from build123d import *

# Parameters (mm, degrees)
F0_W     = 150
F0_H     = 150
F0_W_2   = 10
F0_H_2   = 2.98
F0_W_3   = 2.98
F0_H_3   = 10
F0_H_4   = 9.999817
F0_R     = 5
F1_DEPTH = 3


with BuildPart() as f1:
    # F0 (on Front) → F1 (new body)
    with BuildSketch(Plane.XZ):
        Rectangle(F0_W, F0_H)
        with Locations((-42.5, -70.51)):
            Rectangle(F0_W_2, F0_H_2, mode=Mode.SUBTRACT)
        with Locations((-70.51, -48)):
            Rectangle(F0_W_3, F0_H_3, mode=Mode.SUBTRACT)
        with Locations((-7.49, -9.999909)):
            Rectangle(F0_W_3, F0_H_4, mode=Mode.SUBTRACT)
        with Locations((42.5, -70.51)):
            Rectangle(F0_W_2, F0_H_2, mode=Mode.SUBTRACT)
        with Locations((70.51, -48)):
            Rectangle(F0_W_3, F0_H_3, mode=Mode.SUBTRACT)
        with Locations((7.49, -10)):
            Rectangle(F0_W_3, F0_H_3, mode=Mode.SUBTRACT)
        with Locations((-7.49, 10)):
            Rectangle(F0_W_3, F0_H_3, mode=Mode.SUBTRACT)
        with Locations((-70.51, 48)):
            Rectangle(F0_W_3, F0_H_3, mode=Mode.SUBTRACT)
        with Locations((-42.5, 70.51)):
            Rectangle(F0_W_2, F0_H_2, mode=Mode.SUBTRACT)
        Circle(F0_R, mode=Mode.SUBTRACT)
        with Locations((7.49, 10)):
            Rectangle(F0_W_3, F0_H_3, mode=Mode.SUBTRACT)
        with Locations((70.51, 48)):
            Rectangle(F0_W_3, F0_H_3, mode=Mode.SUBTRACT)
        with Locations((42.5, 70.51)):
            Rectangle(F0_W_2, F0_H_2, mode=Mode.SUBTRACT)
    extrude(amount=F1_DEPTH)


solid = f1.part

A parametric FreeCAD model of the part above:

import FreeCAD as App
import Part
import Sketcher

doc = App.newDocument("Part")
body = doc.addObject("PartDesign::Body", "Body")

# Sketch on XZ plane
sketch1 = body.newObject("Sketcher::SketchObject", "Sketch")
sketch1.AttachmentSupport = (doc.getObject("XZ_Plane"), [""])
sketch1.MapMode = "FlatFace"
sketch1.addGeometry(Part.LineSegment(App.Vector(-75, 75, 0), App.Vector(-75, -75, 0)), False)
sketch1.addGeometry(Part.LineSegment(App.Vector(-75, -75, 0), App.Vector(75, -75, 0)), False)
sketch1.addGeometry(Part.LineSegment(App.Vector(75, -75, 0), App.Vector(75, 75, 0)), False)
sketch1.addGeometry(Part.LineSegment(App.Vector(75, 75, 0), App.Vector(-75, 75, 0)), False)
sketch1.addGeometry(Part.LineSegment(App.Vector(-37.5, -72, 0), App.Vector(-47.5, -72, 0)), False)
sketch1.addGeometry(Part.LineSegment(App.Vector(-47.5, -72, 0), App.Vector(-47.5, -69, 0)), False)
sketch1.addGeometry(Part.LineSegment(App.Vector(-47.5, -69, 0), App.Vector(-37.5, -69, 0)), False)
sketch1.addGeometry(Part.LineSegment(App.Vector(-37.5, -69, 0), App.Vector(-37.5, -72, 0)), False)
sketch1.addGeometry(Part.LineSegment(App.Vector(-69, -53, 0), App.Vector(-72, -53, 0)), False)
sketch1.addGeometry(Part.LineSegment(App.Vector(-72, -53, 0), App.Vector(-72, -43, 0)), False)
sketch1.addGeometry(Part.LineSegment(App.Vector(-72, -43, 0), App.Vector(-69, -43, 0)), False)
sketch1.addGeometry(Part.LineSegment(App.Vector(-69, -43, 0), App.Vector(-69, -53, 0)), False)
sketch1.addGeometry(Part.LineSegment(App.Vector(-6, -15, 0), App.Vector(-9, -15, 0)), False)
sketch1.addGeometry(Part.LineSegment(App.Vector(-9, -15, 0), App.Vector(-9, -5, 0)), False)
sketch1.addGeometry(Part.LineSegment(App.Vector(-9, -5, 0), App.Vector(-6, -5, 0)), False)
sketch1.addGeometry(Part.LineSegment(App.Vector(-6, -5, 0), App.Vector(-6, -15, 0)), False)
sketch1.addGeometry(Part.LineSegment(App.Vector(47.5, -72, 0), App.Vector(37.5, -72, 0)), False)
sketch1.addGeometry(Part.LineSegment(App.Vector(37.5, -72, 0), App.Vector(37.5, -69, 0)), False)
sketch1.addGeometry(Part.LineSegment(App.Vector(37.5, -69, 0), App.Vector(47.5, -69, 0)), False)
sketch1.addGeometry(Part.LineSegment(App.Vector(47.5, -69, 0), App.Vector(47.5, -72, 0)), False)
sketch1.addGeometry(Part.LineSegment(App.Vector(72, -53, 0), App.Vector(69, -53, 0)), False)
sketch1.addGeometry(Part.LineSegment(App.Vector(69, -53, 0), App.Vector(69, -43, 0)), False)
sketch1.addGeometry(Part.LineSegment(App.Vector(69, -43, 0), App.Vector(72, -43, 0)), False)
sketch1.addGeometry(Part.LineSegment(App.Vector(72, -43, 0), App.Vector(72, -53, 0)), False)
sketch1.addGeometry(Part.LineSegment(App.Vector(9, -15, 0), App.Vector(6, -15, 0)), False)
sketch1.addGeometry(Part.LineSegment(App.Vector(6, -15, 0), App.Vector(6, -5, 0)), False)
sketch1.addGeometry(Part.LineSegment(App.Vector(6, -5, 0), App.Vector(9, -5, 0)), False)
sketch1.addGeometry(Part.LineSegment(App.Vector(9, -5, 0), App.Vector(9, -15, 0)), False)
sketch1.addGeometry(Part.LineSegment(App.Vector(-6, 5, 0), App.Vector(-9, 5, 0)), False)
sketch1.addGeometry(Part.LineSegment(App.Vector(-9, 5, 0), App.Vector(-9, 15, 0)), False)
sketch1.addGeometry(Part.LineSegment(App.Vector(-9, 15, 0), App.Vector(-6, 15, 0)), False)
sketch1.addGeometry(Part.LineSegment(App.Vector(-6, 15, 0), App.Vector(-6, 5, 0)), False)
sketch1.addGeometry(Part.LineSegment(App.Vector(-69, 43, 0), App.Vector(-72, 43, 0)), False)
sketch1.addGeometry(Part.LineSegment(App.Vector(-72, 43, 0), App.Vector(-72, 53, 0)), False)
sketch1.addGeometry(Part.LineSegment(App.Vector(-72, 53, 0), App.Vector(-69, 53, 0)), False)
sketch1.addGeometry(Part.LineSegment(App.Vector(-69, 53, 0), App.Vector(-69, 43, 0)), False)
sketch1.addGeometry(Part.LineSegment(App.Vector(-37.5, 69, 0), App.Vector(-47.5, 69, 0)), False)
sketch1.addGeometry(Part.LineSegment(App.Vector(-47.5, 69, 0), App.Vector(-47.5, 72, 0)), False)
sketch1.addGeometry(Part.LineSegment(App.Vector(-47.5, 72, 0), App.Vector(-37.5, 72, 0)), False)
sketch1.addGeometry(Part.LineSegment(App.Vector(-37.5, 72, 0), App.Vector(-37.5, 69, 0)), False)
sketch1.addGeometry(Part.Circle(App.Vector(0, 0, 0), App.Vector(0, 0, 1), 5), False)
sketch1.addGeometry(Part.LineSegment(App.Vector(9, 5, 0), App.Vector(6, 5, 0)), False)
sketch1.addGeometry(Part.LineSegment(App.Vector(6, 5, 0), App.Vector(6, 15, 0)), False)
sketch1.addGeometry(Part.LineSegment(App.Vector(6, 15, 0), App.Vector(9, 15, 0)), False)
sketch1.addGeometry(Part.LineSegment(App.Vector(9, 15, 0), App.Vector(9, 5, 0)), False)
sketch1.addGeometry(Part.LineSegment(App.Vector(72, 43, 0), App.Vector(69, 43, 0)), False)
sketch1.addGeometry(Part.LineSegment(App.Vector(69, 43, 0), App.Vector(69, 53, 0)), False)
sketch1.addGeometry(Part.LineSegment(App.Vector(69, 53, 0), App.Vector(72, 53, 0)), False)
sketch1.addGeometry(Part.LineSegment(App.Vector(72, 53, 0), App.Vector(72, 43, 0)), False)
sketch1.addGeometry(Part.LineSegment(App.Vector(47.5, 69, 0), App.Vector(37.5, 69, 0)), False)
sketch1.addGeometry(Part.LineSegment(App.Vector(37.5, 69, 0), App.Vector(37.5, 72, 0)), False)
sketch1.addGeometry(Part.LineSegment(App.Vector(37.5, 72, 0), App.Vector(47.5, 72, 0)), False)
sketch1.addGeometry(Part.LineSegment(App.Vector(47.5, 72, 0), App.Vector(47.5, 69, 0)), False)
sketch1.addConstraint(Sketcher.Constraint("Coincident", 0, 2, 1, 1))
sketch1.addConstraint(Sketcher.Constraint("Coincident", 1, 2, 2, 1))
sketch1.addConstraint(Sketcher.Constraint("Coincident", 2, 2, 3, 1))
sketch1.addConstraint(Sketcher.Constraint("Coincident", 3, 2, 0, 1))
sketch1.addConstraint(Sketcher.Constraint("Coincident", 4, 2, 5, 1))
sketch1.addConstraint(Sketcher.Constraint("Coincident", 5, 2, 6, 1))
sketch1.addConstraint(Sketcher.Constraint("Coincident", 6, 2, 7, 1))
sketch1.addConstraint(Sketcher.Constraint("Coincident", 7, 2, 4, 1))
sketch1.addConstraint(Sketcher.Constraint("Coincident", 8, 2, 9, 1))
sketch1.addConstraint(Sketcher.Constraint("Coincident", 9, 2, 10, 1))
sketch1.addConstraint(Sketcher.Constraint("Coincident", 10, 2, 11, 1))
sketch1.addConstraint(Sketcher.Constraint("Coincident", 11, 2, 8, 1))
sketch1.addConstraint(Sketcher.Constraint("Coincident", 12, 2, 13, 1))
sketch1.addConstraint(Sketcher.Constraint("Coincident", 13, 2, 14, 1))
sketch1.addConstraint(Sketcher.Constraint("Coincident", 14, 2, 15, 1))
sketch1.addConstraint(Sketcher.Constraint("Coincident", 15, 2, 12, 1))
sketch1.addConstraint(Sketcher.Constraint("Coincident", 16, 2, 17, 1))
sketch1.addConstraint(Sketcher.Constraint("Coincident", 17, 2, 18, 1))
sketch1.addConstraint(Sketcher.Constraint("Coincident", 18, 2, 19, 1))
sketch1.addConstraint(Sketcher.Constraint("Coincident", 19, 2, 16, 1))
sketch1.addConstraint(Sketcher.Constraint("Coincident", 20, 2, 21, 1))
sketch1.addConstraint(Sketcher.Constraint("Coincident", 21, 2, 22, 1))
sketch1.addConstraint(Sketcher.Constraint("Coincident", 22, 2, 23, 1))
sketch1.addConstraint(Sketcher.Constraint("Coincident", 23, 2, 20, 1))
sketch1.addConstraint(Sketcher.Constraint("Coincident", 24, 2, 25, 1))
sketch1.addConstraint(Sketcher.Constraint("Coincident", 25, 2, 26, 1))
sketch1.addConstraint(Sketcher.Constraint("Coincident", 26, 2, 27, 1))
sketch1.addConstraint(Sketcher.Constraint("Coincident", 27, 2, 24, 1))
sketch1.addConstraint(Sketcher.Constraint("Coincident", 28, 2, 29, 1))
sketch1.addConstraint(Sketcher.Constraint("Coincident", 29, 2, 30, 1))
sketch1.addConstraint(Sketcher.Constraint("Coincident", 30, 2, 31, 1))
sketch1.addConstraint(Sketcher.Constraint("Coincident", 31, 2, 28, 1))
sketch1.addConstraint(Sketcher.Constraint("Coincident", 32, 2, 33, 1))
sketch1.addConstraint(Sketcher.Constraint("Coincident", 33, 2, 34, 1))
sketch1.addConstraint(Sketcher.Constraint("Coincident", 34, 2, 35, 1))
sketch1.addConstraint(Sketcher.Constraint("Coincident", 35, 2, 32, 1))
sketch1.addConstraint(Sketcher.Constraint("Coincident", 36, 2, 37, 1))
sketch1.addConstraint(Sketcher.Constraint("Coincident", 37, 2, 38, 1))
sketch1.addConstraint(Sketcher.Constraint("Coincident", 38, 2, 39, 1))
sketch1.addConstraint(Sketcher.Constraint("Coincident", 39, 2, 36, 1))
sketch1.addConstraint(Sketcher.Constraint("Coincident", 41, 2, 42, 1))
sketch1.addConstraint(Sketcher.Constraint("Coincident", 42, 2, 43, 1))
sketch1.addConstraint(Sketcher.Constraint("Coincident", 43, 2, 44, 1))
sketch1.addConstraint(Sketcher.Constraint("Coincident", 44, 2, 41, 1))
sketch1.addConstraint(Sketcher.Constraint("Coincident", 45, 2, 46, 1))
sketch1.addConstraint(Sketcher.Constraint("Coincident", 46, 2, 47, 1))
sketch1.addConstraint(Sketcher.Constraint("Coincident", 47, 2, 48, 1))
sketch1.addConstraint(Sketcher.Constraint("Coincident", 48, 2, 45, 1))
sketch1.addConstraint(Sketcher.Constraint("Coincident", 49, 2, 50, 1))
sketch1.addConstraint(Sketcher.Constraint("Coincident", 50, 2, 51, 1))
sketch1.addConstraint(Sketcher.Constraint("Coincident", 51, 2, 52, 1))
sketch1.addConstraint(Sketcher.Constraint("Coincident", 52, 2, 49, 1))
sketch1.addConstraint(Sketcher.Constraint("Vertical", 0))
sketch1.addConstraint(Sketcher.Constraint("Horizontal", 1))
sketch1.addConstraint(Sketcher.Constraint("Vertical", 2))
sketch1.addConstraint(Sketcher.Constraint("Horizontal", 3))
sketch1.addConstraint(Sketcher.Constraint("Horizontal", 4))
sketch1.addConstraint(Sketcher.Constraint("Vertical", 5))
sketch1.addConstraint(Sketcher.Constraint("Horizontal", 6))
sketch1.addConstraint(Sketcher.Constraint("Vertical", 7))
sketch1.addConstraint(Sketcher.Constraint("Horizontal", 8))
sketch1.addConstraint(Sketcher.Constraint("Vertical", 9))
sketch1.addConstraint(Sketcher.Constraint("Horizontal", 10))
sketch1.addConstraint(Sketcher.Constraint("Vertical", 11))
sketch1.addConstraint(Sketcher.Constraint("Horizontal", 12))
sketch1.addConstraint(Sketcher.Constraint("Vertical", 13))
sketch1.addConstraint(Sketcher.Constraint("Horizontal", 14))
sketch1.addConstraint(Sketcher.Constraint("Vertical", 15))
sketch1.addConstraint(Sketcher.Constraint("Horizontal", 16))
sketch1.addConstraint(Sketcher.Constraint("Vertical", 17))
sketch1.addConstraint(Sketcher.Constraint("Horizontal", 18))
sketch1.addConstraint(Sketcher.Constraint("Vertical", 19))
sketch1.addConstraint(Sketcher.Constraint("Horizontal", 20))
sketch1.addConstraint(Sketcher.Constraint("Vertical", 21))
sketch1.addConstraint(Sketcher.Constraint("Horizontal", 22))
sketch1.addConstraint(Sketcher.Constraint("Vertical", 23))
sketch1.addConstraint(Sketcher.Constraint("Horizontal", 24))
sketch1.addConstraint(Sketcher.Constraint("Vertical", 25))
sketch1.addConstraint(Sketcher.Constraint("Horizontal", 26))
sketch1.addConstraint(Sketcher.Constraint("Vertical", 27))
sketch1.addConstraint(Sketcher.Constraint("Horizontal", 28))
sketch1.addConstraint(Sketcher.Constraint("Vertical", 29))
sketch1.addConstraint(Sketcher.Constraint("Horizontal", 30))
sketch1.addConstraint(Sketcher.Constraint("Vertical", 31))
sketch1.addConstraint(Sketcher.Constraint("Horizontal", 32))
sketch1.addConstraint(Sketcher.Constraint("Vertical", 33))
sketch1.addConstraint(Sketcher.Constraint("Horizontal", 34))
sketch1.addConstraint(Sketcher.Constraint("Vertical", 35))
sketch1.addConstraint(Sketcher.Constraint("Horizontal", 36))
sketch1.addConstraint(Sketcher.Constraint("Vertical", 37))
sketch1.addConstraint(Sketcher.Constraint("Horizontal", 38))
sketch1.addConstraint(Sketcher.Constraint("Vertical", 39))
sketch1.addConstraint(Sketcher.Constraint("Horizontal", 41))
sketch1.addConstraint(Sketcher.Constraint("Vertical", 42))
sketch1.addConstraint(Sketcher.Constraint("Horizontal", 43))
sketch1.addConstraint(Sketcher.Constraint("Vertical", 44))
sketch1.addConstraint(Sketcher.Constraint("Horizontal", 45))
sketch1.addConstraint(Sketcher.Constraint("Vertical", 46))
sketch1.addConstraint(Sketcher.Constraint("Horizontal", 47))
sketch1.addConstraint(Sketcher.Constraint("Vertical", 48))
sketch1.addConstraint(Sketcher.Constraint("Horizontal", 49))
sketch1.addConstraint(Sketcher.Constraint("Vertical", 50))
sketch1.addConstraint(Sketcher.Constraint("Horizontal", 51))
sketch1.addConstraint(Sketcher.Constraint("Vertical", 52))
sketch1.addConstraint(Sketcher.Constraint("Coincident", 40, 3, -1, 1))
sketch1.addConstraint(Sketcher.Constraint("Symmetric", 0, 2, 2, 2, -1, 1))
sketch1.addConstraint(Sketcher.Constraint("Symmetric", 26, 2, 28, 2, -1, 1))
sketch1.addConstraint(Sketcher.Constraint("Symmetric", 24, 2, 30, 2, -1, 1))
sketch1.addConstraint(Sketcher.Constraint("Symmetric", 22, 2, 32, 2, -1, 1))
sketch1.addConstraint(Sketcher.Constraint("Symmetric", 20, 2, 34, 2, -1, 1))
sketch1.addConstraint(Sketcher.Constraint("Symmetric", 18, 2, 36, 2, -1, 1))
sketch1.addConstraint(Sketcher.Constraint("Symmetric", 16, 2, 38, 2, -1, 1))
sketch1.addConstraint(Sketcher.Constraint("Symmetric", 14, 2, 41, 2, -1, 1))
sketch1.addConstraint(Sketcher.Constraint("Symmetric", 10, 2, 45, 2, -1, 1))
sketch1.addConstraint(Sketcher.Constraint("Symmetric", 8, 2, 47, 2, -1, 1))
sketch1.addConstraint(Sketcher.Constraint("Symmetric", 6, 2, 49, 2, -1, 1))
sketch1.addConstraint(Sketcher.Constraint("Symmetric", 4, 2, 51, 2, -1, 1))
sketch1.addConstraint(Sketcher.Constraint("Symmetric", 7, 2, 16, 2, -2))
sketch1.addConstraint(Sketcher.Constraint("Symmetric", 5, 2, 18, 2, -2))
sketch1.addConstraint(Sketcher.Constraint("Symmetric", 11, 2, 20, 2, -2))
sketch1.addConstraint(Sketcher.Constraint("Symmetric", 9, 2, 22, 2, -2))
sketch1.addConstraint(Sketcher.Constraint("Symmetric", 14, 2, 25, 2, -2))
sketch1.addConstraint(Sketcher.Constraint("Symmetric", 29, 2, 43, 2, -2))
sketch1.addConstraint(Sketcher.Constraint("Vertical", 13, 2, 28, 2))
sketch1.addConstraint(Sketcher.Constraint("Equal", 10, 12))
sketch1.addConstraint(Sketcher.Constraint("Equal", 3, 0))
sketch1.addConstraint(Sketcher.Constraint("Equal", 47, 5))
sketch1.addConstraint(Sketcher.Constraint("Equal", 51, 9))
sketch1.addConstraint(Sketcher.Constraint("Equal", 23, 25))
sketch1.addConstraint(Sketcher.Constraint("Diameter", 40, 10.0))
sketch1.addConstraint(Sketcher.Constraint("DistanceX", 1, 1, 1, 2, 150.0))
sketch1.addConstraint(Sketcher.Constraint("DistanceX", 4, 2, 4, 1, 10.0))
sketch1.addConstraint(Sketcher.Constraint("DistanceY", 4, 2, -1, 1, 72.0))
sketch1.addConstraint(Sketcher.Constraint("DistanceX", 8, 2, -1, 1, 72.0))
sketch1.addConstraint(Sketcher.Constraint("DistanceY", 8, 2, -1, 1, 53.0))
sketch1.addConstraint(Sketcher.Constraint("DistanceY", 13, 2, -1, 1, 5.0))
sketch1.addConstraint(Sketcher.Constraint("DistanceX", 14, 2, -1, 1, 6.0))
sketch1.addConstraint(Sketcher.Constraint("DistanceX", 7, 2, 16, 2, 75.0))
sketch1.addConstraint(Sketcher.Constraint("DistanceX", 8, 2, 8, 1, 2.98))
sketch1.addConstraint(Sketcher.Constraint("DistanceY", 13, 1, 13, 2, 9.999817))
pad1 = body.newObject("PartDesign::Pad", "Pad")
pad1.Profile = sketch1
pad1.Length = 3

doc.recompute()
